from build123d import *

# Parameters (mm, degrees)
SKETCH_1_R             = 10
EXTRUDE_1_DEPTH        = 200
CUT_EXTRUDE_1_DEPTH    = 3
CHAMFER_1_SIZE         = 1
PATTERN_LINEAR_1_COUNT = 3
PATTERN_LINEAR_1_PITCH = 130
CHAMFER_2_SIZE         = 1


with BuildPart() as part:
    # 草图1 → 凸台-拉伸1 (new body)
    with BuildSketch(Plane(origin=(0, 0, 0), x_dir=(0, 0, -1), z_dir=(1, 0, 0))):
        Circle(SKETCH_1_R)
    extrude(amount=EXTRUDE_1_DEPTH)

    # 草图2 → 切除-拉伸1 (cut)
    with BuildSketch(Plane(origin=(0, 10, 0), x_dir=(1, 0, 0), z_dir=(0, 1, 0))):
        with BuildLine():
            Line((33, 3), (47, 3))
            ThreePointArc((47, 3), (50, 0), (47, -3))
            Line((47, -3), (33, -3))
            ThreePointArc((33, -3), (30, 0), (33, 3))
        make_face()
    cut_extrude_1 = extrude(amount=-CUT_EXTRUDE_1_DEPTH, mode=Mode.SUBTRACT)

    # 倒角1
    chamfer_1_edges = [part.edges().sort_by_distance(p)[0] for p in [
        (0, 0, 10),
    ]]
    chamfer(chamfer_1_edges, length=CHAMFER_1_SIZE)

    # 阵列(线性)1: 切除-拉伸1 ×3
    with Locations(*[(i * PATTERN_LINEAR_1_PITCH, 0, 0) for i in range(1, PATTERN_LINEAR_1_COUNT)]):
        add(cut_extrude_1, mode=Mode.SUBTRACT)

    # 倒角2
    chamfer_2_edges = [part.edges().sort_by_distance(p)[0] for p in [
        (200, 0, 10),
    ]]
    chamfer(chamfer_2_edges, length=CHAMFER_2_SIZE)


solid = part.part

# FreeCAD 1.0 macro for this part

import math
import FreeCAD as App
import Part
import Sketcher
from FreeCAD import Vector
Q = App.Units.Quantity


def edges_at(feature, points):
    """Names of the edges that pass closest to the given points."""
    edges = feature.Shape.Edges
    near = lambda p: min(range(len(edges)), key=lambda i: edges[i].distToShape(Part.Vertex(*p))[0])
    return sorted({f"Edge{near(p) + 1}" for p in points})

doc = App.newDocument("Part")
body = doc.addObject("PartDesign::Body", "Body")

sketch1 = body.newObject("Sketcher::SketchObject", "Sketch")
sketch1.AttachmentSupport = (doc.getObject("YZ_Plane"), [""])
sketch1.MapMode = "FlatFace"
sketch1.addGeometry(Part.Circle(Vector(0, 0, 0), Vector(0, 0, 1), 10), False)
sketch1.addConstraint([
    Sketcher.Constraint("Coincident", 0, 3, -1, 1),
    Sketcher.Constraint("Diameter", 0, Q("20 mm")),
])
pad1 = body.newObject("PartDesign::Pad", "Pad")
pad1.Profile = sketch1
pad1.Length = 200

sketch2 = body.newObject("Sketcher::SketchObject", "Sketch001")
sketch2.AttachmentSupport = (doc.getObject("XZ_Plane"), [""])
sketch2.MapMode = "FlatFace"
sketch2.AttachmentOffset = App.Placement(Vector(0, 0, -10), App.Rotation())
sketch2.addGeometry([
    Part.LineSegment(Vector(47, -3, 0), Vector(33, -3, 0)),
    Part.ArcOfCircle(Part.Circle(Vector(33, 0, 0), Vector(0, 0, 1), 3), math.radians(90), math.radians(270)),
    Part.LineSegment(Vector(33, 3, 0), Vector(47, 3, 0)),
    Part.ArcOfCircle(Part.Circle(Vector(47, 0, 0), Vector(0, 0, 1), 3), math.radians(-90), math.radians(90)),
], False)
sketch2.addConstraint([
    Sketcher.Constraint("Tangent", 0, 2, 1, 2),
    Sketcher.Constraint("Tangent", 1, 1, 2, 1),
    Sketcher.Constraint("Tangent", 2, 2, 3, 2),
    Sketcher.Constraint("Tangent", 3, 1, 0, 1),
    Sketcher.Constraint("Horizontal", 0),
    Sketcher.Constraint("Horizontal", 2),
    Sketcher.Constraint("PointOnObject", 1, 3, -1),
    Sketcher.Constraint("Radius", 1, Q("3 mm")),
    Sketcher.Constraint("DistanceX", 0, 2, 0, 1, Q("14 mm")),
    Sketcher.Constraint("DistanceX", -1, 1, 1, 3, Q("33 mm")),
])
pocket1 = body.newObject("PartDesign::Pocket", "Pocket")
pocket1.Profile = sketch2
pocket1.Length = 3
pocket1.Reversed = True
doc.recompute()

chamfer = body.newObject("PartDesign::Chamfer", "Chamfer")
chamfer.Base = (pocket1, edges_at(pocket1, [(0, 0, 10)]))
chamfer.Size = 1
doc.recompute()

linearpattern = body.newObject("PartDesign::LinearPattern", "LinearPattern")
linearpattern.Originals = [pocket1]
linearpattern.Direction = (doc.getObject("X_Axis"), [""])
linearpattern.Mode = "offset"
linearpattern.Offset = 130
linearpattern.Occurrences = 3
body.Tip = linearpattern
doc.recompute()

chamfer2 = body.newObject("PartDesign::Chamfer", "Chamfer001")
chamfer2.Base = (linearpattern, edges_at(linearpattern, [(200, 0, 10)]))
chamfer2.Size = 1

doc.recompute()
